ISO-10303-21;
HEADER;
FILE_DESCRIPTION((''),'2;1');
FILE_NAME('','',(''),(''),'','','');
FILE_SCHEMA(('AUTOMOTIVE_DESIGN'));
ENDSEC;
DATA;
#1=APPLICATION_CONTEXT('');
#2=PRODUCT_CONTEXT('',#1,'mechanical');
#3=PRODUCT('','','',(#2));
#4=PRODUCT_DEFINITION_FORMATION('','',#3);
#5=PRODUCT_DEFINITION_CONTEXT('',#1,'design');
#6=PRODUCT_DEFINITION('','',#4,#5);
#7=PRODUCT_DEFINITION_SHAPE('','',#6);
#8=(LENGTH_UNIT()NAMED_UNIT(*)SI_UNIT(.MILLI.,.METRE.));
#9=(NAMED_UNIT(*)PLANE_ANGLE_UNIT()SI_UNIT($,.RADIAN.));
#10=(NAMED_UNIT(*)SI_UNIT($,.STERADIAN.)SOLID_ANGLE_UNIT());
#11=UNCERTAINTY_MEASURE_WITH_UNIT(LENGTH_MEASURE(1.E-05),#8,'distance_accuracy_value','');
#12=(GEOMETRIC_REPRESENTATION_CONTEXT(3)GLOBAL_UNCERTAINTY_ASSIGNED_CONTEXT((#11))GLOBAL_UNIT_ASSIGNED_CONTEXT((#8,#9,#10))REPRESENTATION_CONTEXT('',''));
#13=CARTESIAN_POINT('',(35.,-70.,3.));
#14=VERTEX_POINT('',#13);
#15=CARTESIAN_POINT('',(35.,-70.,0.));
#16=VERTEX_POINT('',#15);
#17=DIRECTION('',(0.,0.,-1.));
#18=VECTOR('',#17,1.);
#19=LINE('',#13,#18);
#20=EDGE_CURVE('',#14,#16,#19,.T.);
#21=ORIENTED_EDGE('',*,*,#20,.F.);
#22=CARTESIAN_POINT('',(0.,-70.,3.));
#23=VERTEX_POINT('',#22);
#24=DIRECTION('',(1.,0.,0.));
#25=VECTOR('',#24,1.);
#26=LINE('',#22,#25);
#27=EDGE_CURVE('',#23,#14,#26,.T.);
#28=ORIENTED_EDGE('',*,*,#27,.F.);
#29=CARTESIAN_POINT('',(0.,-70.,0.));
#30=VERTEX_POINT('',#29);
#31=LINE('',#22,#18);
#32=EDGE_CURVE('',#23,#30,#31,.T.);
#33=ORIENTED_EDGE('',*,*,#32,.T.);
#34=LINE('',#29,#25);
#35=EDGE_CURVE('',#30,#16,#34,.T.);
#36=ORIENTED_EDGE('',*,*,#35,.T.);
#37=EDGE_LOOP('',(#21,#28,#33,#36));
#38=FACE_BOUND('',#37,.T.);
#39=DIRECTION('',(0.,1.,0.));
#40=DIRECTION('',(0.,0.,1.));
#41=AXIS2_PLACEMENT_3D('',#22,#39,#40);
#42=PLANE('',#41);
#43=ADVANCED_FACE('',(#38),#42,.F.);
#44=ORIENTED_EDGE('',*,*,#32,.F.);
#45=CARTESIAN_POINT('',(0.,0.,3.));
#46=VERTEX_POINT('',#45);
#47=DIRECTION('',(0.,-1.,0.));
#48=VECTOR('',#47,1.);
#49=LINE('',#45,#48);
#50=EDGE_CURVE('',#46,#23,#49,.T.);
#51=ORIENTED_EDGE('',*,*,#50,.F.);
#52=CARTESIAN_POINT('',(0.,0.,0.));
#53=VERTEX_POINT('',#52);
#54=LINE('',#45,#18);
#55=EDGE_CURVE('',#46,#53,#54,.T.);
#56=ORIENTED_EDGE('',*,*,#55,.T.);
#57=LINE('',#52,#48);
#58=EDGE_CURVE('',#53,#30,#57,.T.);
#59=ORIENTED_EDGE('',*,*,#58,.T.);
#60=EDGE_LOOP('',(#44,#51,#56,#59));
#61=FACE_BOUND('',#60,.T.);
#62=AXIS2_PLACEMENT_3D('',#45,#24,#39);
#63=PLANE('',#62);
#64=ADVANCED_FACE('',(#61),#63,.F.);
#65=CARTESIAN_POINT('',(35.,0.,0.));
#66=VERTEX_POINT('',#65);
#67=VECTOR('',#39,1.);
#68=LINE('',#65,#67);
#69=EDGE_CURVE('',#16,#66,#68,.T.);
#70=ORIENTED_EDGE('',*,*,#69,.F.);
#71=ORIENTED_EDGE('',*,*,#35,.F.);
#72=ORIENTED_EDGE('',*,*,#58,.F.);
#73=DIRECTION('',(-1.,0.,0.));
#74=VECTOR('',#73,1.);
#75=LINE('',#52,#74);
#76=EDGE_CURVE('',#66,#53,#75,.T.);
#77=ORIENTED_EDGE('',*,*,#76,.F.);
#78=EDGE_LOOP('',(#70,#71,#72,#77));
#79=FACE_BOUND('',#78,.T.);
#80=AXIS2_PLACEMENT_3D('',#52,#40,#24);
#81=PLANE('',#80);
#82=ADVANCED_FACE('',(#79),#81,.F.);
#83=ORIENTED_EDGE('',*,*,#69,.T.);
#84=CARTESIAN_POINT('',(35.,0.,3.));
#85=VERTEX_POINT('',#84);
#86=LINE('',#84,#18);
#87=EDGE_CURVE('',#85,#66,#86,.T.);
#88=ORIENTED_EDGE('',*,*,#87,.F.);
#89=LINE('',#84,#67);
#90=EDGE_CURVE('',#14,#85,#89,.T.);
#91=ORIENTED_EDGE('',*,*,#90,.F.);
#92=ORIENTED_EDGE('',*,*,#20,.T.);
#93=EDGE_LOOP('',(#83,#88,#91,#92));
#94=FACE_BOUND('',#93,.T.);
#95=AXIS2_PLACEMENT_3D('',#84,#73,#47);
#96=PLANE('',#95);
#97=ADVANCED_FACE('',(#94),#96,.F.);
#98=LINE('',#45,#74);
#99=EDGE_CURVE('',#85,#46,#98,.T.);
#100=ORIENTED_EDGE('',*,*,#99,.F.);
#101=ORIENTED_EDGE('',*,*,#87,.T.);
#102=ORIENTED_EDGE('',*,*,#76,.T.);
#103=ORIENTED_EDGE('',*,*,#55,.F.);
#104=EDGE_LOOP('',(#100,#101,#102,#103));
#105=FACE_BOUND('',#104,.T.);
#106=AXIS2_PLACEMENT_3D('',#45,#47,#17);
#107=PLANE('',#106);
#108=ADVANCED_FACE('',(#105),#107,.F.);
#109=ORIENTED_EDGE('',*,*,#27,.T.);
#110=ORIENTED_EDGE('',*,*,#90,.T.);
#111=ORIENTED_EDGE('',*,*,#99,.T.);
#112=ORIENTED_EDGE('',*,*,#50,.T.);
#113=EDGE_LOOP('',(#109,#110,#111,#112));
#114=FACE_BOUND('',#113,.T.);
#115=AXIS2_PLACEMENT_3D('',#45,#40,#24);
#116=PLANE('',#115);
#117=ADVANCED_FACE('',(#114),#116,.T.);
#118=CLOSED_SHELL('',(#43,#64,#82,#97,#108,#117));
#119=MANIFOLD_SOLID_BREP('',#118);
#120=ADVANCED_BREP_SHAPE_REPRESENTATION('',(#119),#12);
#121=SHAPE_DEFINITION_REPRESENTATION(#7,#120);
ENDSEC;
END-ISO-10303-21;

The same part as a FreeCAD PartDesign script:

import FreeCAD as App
import Part
import Sketcher
from FreeCAD import Vector


def add_polygon(sketch, points):
    """Adds a closed chain of lines whose ends are joined by coincident constraints."""
    first, n = sketch.GeometryCount, len(points)
    for a, b in zip(points, points[1:] + points[:1]):
        sketch.addGeometry(Part.LineSegment(App.Vector(*a, 0), App.Vector(*b, 0)), False)
    for i in range(n):
        sketch.addConstraint(Sketcher.Constraint("Coincident", first + i, 2, first + (i + 1) % n, 1))

doc = App.newDocument("Part")
params = doc.addObject("Spreadsheet::Sheet", "Params")
for row, (alias, value) in enumerate([
    ("sketch1_width", "35 mm"),
    ("sketch1_height", "70 mm"),
    ("pad1_length", "3 mm"),
], start=1):
    params.set(f"A{row}", alias)
    params.set(f"B{row}", "=" + value)
    params.setAlias(f"B{row}", alias)

body = doc.addObject("PartDesign::Body", "Body")

sketch1 = body.newObject("Sketcher::SketchObject", "Sketch")
sketch1.AttachmentSupport = (doc.getObject("XY_Plane"), [""])
sketch1.MapMode = "FlatFace"
add_polygon(sketch1, [(0, 0), (0, -70), (35, -70), (35, 0)])
sketch1.addConstraint(Sketcher.Constraint("Vertical", 0))
sketch1.addConstraint(Sketcher.Constraint("Horizontal", 1))
sketch1.addConstraint(Sketcher.Constraint("Vertical", 2))
sketch1.addConstraint(Sketcher.Constraint("Horizontal", 3))
sketch1.addConstraint(Sketcher.Constraint("Coincident", 3, 2, -1, 1))
sketch1.addConstraint(Sketcher.Constraint("DistanceX", 1, 1, 1, 2, 35.0))
sketch1.addConstraint(Sketcher.Constraint("DistanceY", 0, 2, 0, 1, 70.0))
sketch1.setExpression("Constraints[9]", "Params.sketch1_width")
sketch1.setExpression("Constraints[10]", "Params.sketch1_height")
pad1 = body.newObject("PartDesign::Pad", "Pad")
pad1.Profile = sketch1
pad1.setExpression("Length", "Params.pad1_length")

doc.recompute()
